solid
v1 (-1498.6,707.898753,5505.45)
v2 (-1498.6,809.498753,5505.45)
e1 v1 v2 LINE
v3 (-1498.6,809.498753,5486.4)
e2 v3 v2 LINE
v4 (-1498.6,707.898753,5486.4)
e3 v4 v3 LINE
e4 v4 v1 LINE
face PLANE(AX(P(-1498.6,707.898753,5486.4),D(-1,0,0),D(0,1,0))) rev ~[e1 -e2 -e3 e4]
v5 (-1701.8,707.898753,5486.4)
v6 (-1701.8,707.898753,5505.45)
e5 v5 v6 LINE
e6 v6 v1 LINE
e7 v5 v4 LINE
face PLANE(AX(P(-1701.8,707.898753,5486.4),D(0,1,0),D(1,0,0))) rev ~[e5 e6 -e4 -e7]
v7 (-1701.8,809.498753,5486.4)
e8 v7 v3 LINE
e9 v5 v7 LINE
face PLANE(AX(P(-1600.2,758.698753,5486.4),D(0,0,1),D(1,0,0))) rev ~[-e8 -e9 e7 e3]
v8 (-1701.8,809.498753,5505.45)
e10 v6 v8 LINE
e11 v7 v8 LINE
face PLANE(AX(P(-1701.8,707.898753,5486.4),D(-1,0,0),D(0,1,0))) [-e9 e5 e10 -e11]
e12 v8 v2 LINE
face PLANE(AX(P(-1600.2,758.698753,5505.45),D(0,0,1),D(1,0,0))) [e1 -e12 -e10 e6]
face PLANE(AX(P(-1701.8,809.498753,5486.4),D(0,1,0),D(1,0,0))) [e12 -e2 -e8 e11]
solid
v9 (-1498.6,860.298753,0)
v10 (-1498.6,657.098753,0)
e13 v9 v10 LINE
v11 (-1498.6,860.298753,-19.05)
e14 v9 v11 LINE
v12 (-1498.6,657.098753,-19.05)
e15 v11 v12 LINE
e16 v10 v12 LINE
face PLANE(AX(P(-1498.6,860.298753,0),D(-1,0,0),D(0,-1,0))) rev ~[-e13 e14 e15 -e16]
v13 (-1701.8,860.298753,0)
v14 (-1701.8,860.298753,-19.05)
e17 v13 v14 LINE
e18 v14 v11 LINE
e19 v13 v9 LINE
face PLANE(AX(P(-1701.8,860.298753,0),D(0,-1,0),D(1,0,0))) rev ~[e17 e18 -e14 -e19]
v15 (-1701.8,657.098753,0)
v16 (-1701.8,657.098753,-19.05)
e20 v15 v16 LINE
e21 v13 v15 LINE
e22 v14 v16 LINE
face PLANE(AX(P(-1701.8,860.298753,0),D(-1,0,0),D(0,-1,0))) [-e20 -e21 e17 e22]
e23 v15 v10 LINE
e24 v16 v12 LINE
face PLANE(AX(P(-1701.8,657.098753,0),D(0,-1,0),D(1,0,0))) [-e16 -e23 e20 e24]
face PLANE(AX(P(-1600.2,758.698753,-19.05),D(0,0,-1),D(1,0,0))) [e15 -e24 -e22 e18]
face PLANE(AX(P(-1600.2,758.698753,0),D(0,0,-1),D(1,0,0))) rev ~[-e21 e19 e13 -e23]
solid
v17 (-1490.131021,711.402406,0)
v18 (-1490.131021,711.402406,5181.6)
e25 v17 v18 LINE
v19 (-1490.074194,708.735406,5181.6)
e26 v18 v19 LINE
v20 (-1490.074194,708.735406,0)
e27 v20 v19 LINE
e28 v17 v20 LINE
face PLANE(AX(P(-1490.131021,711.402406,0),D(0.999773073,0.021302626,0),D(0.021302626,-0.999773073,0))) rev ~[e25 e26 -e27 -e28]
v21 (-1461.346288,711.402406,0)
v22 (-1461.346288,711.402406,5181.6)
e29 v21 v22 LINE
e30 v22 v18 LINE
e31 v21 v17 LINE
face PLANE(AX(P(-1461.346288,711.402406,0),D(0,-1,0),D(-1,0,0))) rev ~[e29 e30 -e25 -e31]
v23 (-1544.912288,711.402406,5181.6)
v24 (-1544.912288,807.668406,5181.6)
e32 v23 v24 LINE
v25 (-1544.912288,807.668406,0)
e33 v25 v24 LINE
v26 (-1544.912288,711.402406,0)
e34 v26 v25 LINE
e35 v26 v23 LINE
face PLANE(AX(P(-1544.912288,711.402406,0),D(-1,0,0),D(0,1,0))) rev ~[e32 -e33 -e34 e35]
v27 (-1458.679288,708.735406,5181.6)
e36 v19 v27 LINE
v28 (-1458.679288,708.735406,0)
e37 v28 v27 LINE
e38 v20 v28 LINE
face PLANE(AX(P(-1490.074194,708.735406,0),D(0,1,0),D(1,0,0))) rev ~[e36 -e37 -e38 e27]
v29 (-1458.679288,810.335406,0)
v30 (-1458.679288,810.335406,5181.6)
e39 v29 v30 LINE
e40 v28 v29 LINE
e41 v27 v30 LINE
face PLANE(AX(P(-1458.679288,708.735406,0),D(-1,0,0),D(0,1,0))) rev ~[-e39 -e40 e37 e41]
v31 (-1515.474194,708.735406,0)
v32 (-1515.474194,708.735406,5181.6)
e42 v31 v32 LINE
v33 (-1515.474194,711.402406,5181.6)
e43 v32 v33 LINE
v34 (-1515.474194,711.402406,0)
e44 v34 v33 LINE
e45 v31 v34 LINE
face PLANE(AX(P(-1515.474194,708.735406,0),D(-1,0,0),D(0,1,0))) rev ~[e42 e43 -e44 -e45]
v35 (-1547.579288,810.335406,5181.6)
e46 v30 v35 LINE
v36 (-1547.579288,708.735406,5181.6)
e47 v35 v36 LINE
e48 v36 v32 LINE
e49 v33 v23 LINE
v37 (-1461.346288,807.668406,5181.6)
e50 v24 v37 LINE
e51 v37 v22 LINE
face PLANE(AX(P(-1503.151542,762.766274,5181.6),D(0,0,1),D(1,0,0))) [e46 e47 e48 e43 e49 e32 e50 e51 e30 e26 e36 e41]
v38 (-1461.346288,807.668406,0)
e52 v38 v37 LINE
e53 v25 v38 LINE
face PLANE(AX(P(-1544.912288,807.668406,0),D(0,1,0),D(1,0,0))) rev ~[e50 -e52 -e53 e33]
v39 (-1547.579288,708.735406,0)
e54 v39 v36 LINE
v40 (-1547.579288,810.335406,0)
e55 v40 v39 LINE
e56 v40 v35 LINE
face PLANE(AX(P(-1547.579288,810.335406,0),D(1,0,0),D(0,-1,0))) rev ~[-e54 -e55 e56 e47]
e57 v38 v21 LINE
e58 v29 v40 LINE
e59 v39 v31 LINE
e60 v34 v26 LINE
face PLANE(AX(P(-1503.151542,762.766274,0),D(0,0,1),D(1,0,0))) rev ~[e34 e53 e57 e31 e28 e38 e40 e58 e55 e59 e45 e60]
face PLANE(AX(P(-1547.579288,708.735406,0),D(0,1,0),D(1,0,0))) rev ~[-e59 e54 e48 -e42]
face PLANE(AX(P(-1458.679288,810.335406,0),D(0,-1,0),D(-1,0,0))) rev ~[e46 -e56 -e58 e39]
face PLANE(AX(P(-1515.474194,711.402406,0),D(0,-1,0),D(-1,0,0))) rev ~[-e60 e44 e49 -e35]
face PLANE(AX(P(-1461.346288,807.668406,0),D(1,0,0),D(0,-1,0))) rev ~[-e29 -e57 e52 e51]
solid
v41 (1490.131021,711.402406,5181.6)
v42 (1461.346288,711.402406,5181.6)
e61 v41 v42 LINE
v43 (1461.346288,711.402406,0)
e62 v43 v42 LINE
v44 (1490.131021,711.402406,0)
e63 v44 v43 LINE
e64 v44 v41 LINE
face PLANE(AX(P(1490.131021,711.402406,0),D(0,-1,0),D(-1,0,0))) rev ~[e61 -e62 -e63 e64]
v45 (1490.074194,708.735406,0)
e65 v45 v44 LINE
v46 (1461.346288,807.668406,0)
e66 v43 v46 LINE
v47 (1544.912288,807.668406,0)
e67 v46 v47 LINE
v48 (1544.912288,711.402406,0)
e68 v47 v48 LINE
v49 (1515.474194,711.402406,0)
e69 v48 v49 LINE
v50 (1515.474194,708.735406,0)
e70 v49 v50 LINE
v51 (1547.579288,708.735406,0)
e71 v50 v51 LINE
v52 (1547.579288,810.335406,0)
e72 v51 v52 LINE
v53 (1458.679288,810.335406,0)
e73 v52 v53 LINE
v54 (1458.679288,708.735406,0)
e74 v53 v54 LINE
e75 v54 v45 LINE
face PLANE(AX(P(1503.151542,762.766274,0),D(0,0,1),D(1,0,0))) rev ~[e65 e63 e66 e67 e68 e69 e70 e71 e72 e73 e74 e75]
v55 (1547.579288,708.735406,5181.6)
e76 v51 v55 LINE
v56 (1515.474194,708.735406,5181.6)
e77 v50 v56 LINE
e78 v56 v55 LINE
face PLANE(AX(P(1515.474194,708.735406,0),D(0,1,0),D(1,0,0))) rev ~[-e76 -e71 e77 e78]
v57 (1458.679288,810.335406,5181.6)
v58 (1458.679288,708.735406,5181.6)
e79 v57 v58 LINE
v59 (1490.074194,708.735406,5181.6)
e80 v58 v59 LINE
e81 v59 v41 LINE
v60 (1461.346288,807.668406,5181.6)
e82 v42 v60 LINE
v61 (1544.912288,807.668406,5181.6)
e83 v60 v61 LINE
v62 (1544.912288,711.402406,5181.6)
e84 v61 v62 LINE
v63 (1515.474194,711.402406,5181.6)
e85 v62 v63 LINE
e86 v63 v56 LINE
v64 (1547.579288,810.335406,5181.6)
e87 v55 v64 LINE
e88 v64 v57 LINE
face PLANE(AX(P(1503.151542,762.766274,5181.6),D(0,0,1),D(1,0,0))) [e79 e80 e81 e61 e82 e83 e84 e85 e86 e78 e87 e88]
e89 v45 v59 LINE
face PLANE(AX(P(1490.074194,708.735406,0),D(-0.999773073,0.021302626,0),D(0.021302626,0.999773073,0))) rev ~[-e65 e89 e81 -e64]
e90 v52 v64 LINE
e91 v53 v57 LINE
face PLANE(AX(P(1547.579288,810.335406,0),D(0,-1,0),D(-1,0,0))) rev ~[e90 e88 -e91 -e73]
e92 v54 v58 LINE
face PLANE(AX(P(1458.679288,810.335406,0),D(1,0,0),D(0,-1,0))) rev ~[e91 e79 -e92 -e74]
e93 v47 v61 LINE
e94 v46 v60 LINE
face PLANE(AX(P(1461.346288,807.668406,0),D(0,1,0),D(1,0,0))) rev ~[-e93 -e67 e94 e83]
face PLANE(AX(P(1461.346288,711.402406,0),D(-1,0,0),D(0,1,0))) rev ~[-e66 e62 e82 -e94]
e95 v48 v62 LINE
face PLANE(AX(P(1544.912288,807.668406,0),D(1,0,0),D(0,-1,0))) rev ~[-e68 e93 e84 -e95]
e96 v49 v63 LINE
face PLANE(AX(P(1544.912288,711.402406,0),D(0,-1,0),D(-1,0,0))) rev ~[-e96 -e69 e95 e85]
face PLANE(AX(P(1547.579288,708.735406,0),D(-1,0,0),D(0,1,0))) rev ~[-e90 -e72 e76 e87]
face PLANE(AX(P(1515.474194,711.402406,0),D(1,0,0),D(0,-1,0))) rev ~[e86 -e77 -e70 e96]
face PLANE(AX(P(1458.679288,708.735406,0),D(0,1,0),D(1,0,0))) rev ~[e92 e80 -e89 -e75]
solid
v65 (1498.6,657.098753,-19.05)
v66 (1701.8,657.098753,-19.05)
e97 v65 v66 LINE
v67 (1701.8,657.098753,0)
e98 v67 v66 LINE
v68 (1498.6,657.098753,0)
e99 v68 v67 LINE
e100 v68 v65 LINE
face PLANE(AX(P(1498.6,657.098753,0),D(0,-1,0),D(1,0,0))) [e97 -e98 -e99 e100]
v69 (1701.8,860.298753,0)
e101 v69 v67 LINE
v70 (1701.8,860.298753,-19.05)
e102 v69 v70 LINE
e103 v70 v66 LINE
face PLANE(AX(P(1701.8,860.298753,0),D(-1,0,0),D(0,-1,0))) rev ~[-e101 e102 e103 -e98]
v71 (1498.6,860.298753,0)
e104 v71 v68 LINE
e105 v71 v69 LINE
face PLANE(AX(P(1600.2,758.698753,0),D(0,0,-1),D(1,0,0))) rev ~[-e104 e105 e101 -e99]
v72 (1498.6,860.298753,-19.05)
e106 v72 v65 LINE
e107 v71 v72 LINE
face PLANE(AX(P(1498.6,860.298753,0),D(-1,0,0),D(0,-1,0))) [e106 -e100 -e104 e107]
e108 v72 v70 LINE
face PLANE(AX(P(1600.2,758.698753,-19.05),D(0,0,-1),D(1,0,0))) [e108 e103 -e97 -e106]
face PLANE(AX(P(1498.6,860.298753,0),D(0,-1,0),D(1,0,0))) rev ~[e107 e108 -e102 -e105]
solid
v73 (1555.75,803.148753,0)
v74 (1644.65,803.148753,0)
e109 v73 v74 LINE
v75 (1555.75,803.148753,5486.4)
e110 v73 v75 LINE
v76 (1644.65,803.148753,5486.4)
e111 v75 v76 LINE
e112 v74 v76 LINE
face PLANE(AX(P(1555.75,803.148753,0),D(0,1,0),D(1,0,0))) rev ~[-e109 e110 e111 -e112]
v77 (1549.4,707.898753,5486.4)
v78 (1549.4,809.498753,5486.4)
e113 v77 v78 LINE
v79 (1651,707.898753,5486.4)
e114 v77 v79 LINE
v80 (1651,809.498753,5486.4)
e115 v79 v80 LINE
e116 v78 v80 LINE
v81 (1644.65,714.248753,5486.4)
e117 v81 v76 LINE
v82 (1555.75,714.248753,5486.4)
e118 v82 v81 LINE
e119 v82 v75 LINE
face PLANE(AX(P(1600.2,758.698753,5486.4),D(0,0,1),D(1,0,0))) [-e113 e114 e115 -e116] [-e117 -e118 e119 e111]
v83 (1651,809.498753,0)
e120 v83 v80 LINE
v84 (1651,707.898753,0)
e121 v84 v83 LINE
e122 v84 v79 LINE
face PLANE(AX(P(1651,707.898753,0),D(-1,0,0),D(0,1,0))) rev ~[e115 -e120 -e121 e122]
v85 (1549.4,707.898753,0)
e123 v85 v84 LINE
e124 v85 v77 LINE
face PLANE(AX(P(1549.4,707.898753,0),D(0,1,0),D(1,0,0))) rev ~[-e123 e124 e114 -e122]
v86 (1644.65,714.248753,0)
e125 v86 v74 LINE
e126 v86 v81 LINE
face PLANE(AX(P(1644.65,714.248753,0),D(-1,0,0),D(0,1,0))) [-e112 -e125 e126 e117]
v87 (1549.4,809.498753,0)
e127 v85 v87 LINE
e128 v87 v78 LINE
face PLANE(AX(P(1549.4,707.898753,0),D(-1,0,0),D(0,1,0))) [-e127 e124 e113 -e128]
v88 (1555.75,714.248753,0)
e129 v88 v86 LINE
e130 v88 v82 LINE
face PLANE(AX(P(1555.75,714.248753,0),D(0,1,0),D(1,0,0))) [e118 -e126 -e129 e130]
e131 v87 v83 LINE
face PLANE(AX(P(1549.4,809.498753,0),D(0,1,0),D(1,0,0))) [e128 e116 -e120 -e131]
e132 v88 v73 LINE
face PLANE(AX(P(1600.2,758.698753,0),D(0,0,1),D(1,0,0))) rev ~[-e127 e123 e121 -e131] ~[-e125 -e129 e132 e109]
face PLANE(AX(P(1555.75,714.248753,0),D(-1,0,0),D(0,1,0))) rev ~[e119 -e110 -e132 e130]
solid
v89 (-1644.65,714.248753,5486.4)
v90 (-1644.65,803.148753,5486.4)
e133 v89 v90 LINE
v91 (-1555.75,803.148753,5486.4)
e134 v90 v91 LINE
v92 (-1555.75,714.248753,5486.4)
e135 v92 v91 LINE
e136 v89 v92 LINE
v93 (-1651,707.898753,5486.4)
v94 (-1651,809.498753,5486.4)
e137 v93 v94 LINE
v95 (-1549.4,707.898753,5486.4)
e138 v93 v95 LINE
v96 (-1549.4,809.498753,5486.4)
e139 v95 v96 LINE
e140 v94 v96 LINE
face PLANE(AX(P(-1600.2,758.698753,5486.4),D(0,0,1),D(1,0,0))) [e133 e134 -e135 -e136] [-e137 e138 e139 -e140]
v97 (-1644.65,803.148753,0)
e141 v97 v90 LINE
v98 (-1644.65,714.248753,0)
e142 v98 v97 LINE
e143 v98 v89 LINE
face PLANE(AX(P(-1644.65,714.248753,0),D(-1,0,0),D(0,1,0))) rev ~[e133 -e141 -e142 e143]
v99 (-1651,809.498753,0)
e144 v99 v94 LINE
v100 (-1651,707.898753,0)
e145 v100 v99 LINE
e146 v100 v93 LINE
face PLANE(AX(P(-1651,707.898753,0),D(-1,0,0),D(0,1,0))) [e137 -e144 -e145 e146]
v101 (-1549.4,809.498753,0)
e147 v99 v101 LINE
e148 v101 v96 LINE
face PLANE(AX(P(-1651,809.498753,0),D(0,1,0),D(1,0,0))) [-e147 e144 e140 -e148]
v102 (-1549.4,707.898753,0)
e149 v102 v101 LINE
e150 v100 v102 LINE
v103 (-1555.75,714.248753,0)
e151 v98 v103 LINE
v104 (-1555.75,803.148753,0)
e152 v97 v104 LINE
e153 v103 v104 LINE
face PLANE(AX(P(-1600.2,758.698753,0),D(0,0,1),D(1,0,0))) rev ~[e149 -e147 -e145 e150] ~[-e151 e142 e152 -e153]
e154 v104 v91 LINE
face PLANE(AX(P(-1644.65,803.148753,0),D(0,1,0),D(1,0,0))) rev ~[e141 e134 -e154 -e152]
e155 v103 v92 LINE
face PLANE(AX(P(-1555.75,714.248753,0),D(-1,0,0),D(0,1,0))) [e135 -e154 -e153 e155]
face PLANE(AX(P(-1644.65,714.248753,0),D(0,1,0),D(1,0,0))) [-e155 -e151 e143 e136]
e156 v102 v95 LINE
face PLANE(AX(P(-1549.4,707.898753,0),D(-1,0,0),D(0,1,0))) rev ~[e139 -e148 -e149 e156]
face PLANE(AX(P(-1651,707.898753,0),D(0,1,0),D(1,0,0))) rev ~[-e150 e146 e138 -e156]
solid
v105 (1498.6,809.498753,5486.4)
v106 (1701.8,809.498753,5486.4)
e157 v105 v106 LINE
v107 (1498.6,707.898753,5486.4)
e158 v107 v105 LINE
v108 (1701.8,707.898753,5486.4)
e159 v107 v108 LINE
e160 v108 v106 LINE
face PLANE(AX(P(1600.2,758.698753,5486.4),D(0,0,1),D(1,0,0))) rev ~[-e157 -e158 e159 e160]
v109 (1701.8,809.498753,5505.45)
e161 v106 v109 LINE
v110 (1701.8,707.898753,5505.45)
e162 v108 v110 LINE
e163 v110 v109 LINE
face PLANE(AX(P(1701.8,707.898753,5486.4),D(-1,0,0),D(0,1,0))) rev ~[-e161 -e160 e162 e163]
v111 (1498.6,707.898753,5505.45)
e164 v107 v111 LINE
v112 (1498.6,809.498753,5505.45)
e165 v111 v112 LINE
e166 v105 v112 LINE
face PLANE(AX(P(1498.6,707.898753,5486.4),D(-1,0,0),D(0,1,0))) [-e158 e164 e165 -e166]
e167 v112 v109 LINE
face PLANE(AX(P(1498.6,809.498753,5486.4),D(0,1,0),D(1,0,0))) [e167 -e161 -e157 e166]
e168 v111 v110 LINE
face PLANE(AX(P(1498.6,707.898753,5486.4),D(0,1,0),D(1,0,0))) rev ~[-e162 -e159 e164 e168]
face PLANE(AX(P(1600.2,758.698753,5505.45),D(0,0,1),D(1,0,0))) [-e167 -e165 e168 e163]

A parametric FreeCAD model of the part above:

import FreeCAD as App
import Part
import Sketcher
from FreeCAD import Vector
Q = App.Units.Quantity


def add_polygon(sketch, points):
    """Adds a closed chain of lines whose ends are joined by coincident constraints."""
    first, n = sketch.GeometryCount, len(points)
    for a, b in zip(points, points[1:] + points[:1]):
        sketch.addGeometry(Part.LineSegment(App.Vector(*a, 0), App.Vector(*b, 0)), False)
    for i in range(n):
        sketch.addConstraint(Sketcher.Constraint("Coincident", first + i, 2, first + (i + 1) % n, 1))

doc = App.newDocument("Part")
body = doc.addObject("PartDesign::Body", "Body")
body.AllowCompound = True

sketch1 = body.newObject("Sketcher::SketchObject", "Sketch")
sketch1.AttachmentSupport = (doc.getObject("XY_Plane"), [""])
sketch1.MapMode = "FlatFace"
add_polygon(sketch1, [(-1651, 809), (-1651, 708), (-1549, 708), (-1549, 809)])
add_polygon(sketch1, [(-1556, 714), (-1645, 714), (-1645, 803), (-1556, 803)])
add_polygon(sketch1, [(1549, 809), (1549, 708), (1651, 708), (1651, 809)])
add_polygon(sketch1, [(1645, 714), (1556, 714), (1556, 803), (1645, 803)])
sketch1.addConstraint([
    Sketcher.Constraint("Vertical", 0),
    Sketcher.Constraint("Horizontal", 1),
    Sketcher.Constraint("Vertical", 2),
    Sketcher.Constraint("Horizontal", 3),
    Sketcher.Constraint("Horizontal", 4),
    Sketcher.Constraint("Vertical", 5),
    Sketcher.Constraint("Horizontal", 6),
    Sketcher.Constraint("Vertical", 7),
    Sketcher.Constraint("Vertical", 8),
    Sketcher.Constraint("Horizontal", 9),
    Sketcher.Constraint("Vertical", 10),
    Sketcher.Constraint("Horizontal", 11),
    Sketcher.Constraint("Horizontal", 12),
    Sketcher.Constraint("Vertical", 13),
    Sketcher.Constraint("Horizontal", 14),
    Sketcher.Constraint("Vertical", 15),
    Sketcher.Constraint("Symmetric", 1, 2, 8, 2, -2),
    Sketcher.Constraint("Symmetric", 3, 2, 10, 2, -2),
    Sketcher.Constraint("Symmetric", 7, 2, 12, 2, -2),
    Sketcher.Constraint("Symmetric", 5, 2, 14, 2, -2),
    Sketcher.Constraint("Equal", 11, 0),
    Sketcher.Constraint("Equal", 14, 5),
    Sketcher.Constraint("DistanceX", 1, 1, 1, 2, Q("4 in")),
    Sketcher.Constraint("DistanceX", 4, 2, 4, 1, Q("3.5 in")),
    Sketcher.Constraint("DistanceX", 0, 2, -1, 1, Q("65 in")),
    Sketcher.Constraint("DistanceX", 4, 2, -1, 1, Q("64.75 in")),
    Sketcher.Constraint("DistanceY", 0, 2, 4, 2, Q("0.25 in")),
    Sketcher.Constraint("DistanceY", -1, 1, 0, 2, 707.898753),
])
pad1 = body.newObject("PartDesign::Pad", "Pad")
pad1.Profile = sketch1
pad1.Length = Q("216 in")
body2 = doc.addObject("PartDesign::Body", "Body001")
body2.AllowCompound = True

sketch2 = body2.newObject("Sketcher::SketchObject", "Sketch001")
sketch2.AttachmentSupport = (doc.getObject("XY_Plane001"), [""])
sketch2.MapMode = "FlatFace"
add_polygon(sketch2, [(-1702, 657), (-1702, 860), (-1499, 860), (-1499, 657)])
add_polygon(sketch2, [(1499, 657), (1499, 860), (1702, 860), (1702, 657)])
sketch2.addConstraint([
    Sketcher.Constraint("Vertical", 0),
    Sketcher.Constraint("Horizontal", 1),
    Sketcher.Constraint("Vertical", 2),
    Sketcher.Constraint("Horizontal", 3),
    Sketcher.Constraint("Vertical", 4),
    Sketcher.Constraint("Horizontal", 5),
    Sketcher.Constraint("Vertical", 6),
    Sketcher.Constraint("Horizontal", 7),
    Sketcher.Constraint("Symmetric", 1, 2, 4, 2, -2),
    Sketcher.Constraint("Symmetric", 3, 2, 6, 2, -2),
    Sketcher.Constraint("Equal", 7, 0),
    Sketcher.Constraint("DistanceX", 1, 1, 1, 2, Q("8 in")),
    Sketcher.Constraint("DistanceX", 0, 2, -1, 1, Q("67 in")),
    Sketcher.Constraint("DistanceY", -1, 1, 0, 2, 860.298753),
])
pad2 = body2.newObject("PartDesign::Pad", "Pad001")
pad2.Profile = sketch2
pad2.Length = Q("0.75 in")
pad2.Reversed = True
body3 = doc.addObject("PartDesign::Body", "Body002")
body3.AllowCompound = True

sketch3 = body3.newObject("Sketcher::SketchObject", "Sketch002")
sketch3.AttachmentSupport = (doc.getObject("XY_Plane002"), [""])
sketch3.MapMode = "FlatFace"
sketch3.AttachmentOffset = App.Placement(Vector(0, 0, 216 * 25.4), App.Rotation())
add_polygon(sketch3, [(-1702, 809), (-1702, 708), (-1499, 708), (-1499, 809)])
add_polygon(sketch3, [(1499, 809), (1499, 708), (1702, 708), (1702, 809)])
sketch3.addConstraint([
    Sketcher.Constraint("Vertical", 0),
    Sketcher.Constraint("Horizontal", 1),
    Sketcher.Constraint("Vertical", 2),
    Sketcher.Constraint("Horizontal", 3),
    Sketcher.Constraint("Vertical", 4),
    Sketcher.Constraint("Horizontal", 5),
    Sketcher.Constraint("Vertical", 6),
    Sketcher.Constraint("Horizontal", 7),
    Sketcher.Constraint("Symmetric", 1, 2, 4, 2, -2),
    Sketcher.Constraint("Symmetric", 3, 2, 6, 2, -2),
    Sketcher.Constraint("DistanceX", 1, 1, 1, 2, Q("8 in")),
    Sketcher.Constraint("DistanceY", 0, 2, 0, 1, Q("4 in")),
    Sketcher.Constraint("DistanceX", 0, 2, -1, 1, Q("67 in")),
    Sketcher.Constraint("DistanceY", -1, 1, 0, 2, 707.898753),
])
pad3 = body3.newObject("PartDesign::Pad", "Pad002")
pad3.Profile = sketch3
pad3.Length = Q("0.75 in")
body4 = doc.addObject("PartDesign::Body", "Body003")
body4.AllowCompound = True

sketch4 = body4.newObject("Sketcher::SketchObject", "Sketch003")
sketch4.AttachmentSupport = (doc.getObject("XY_Plane003"), [""])
sketch4.MapMode = "FlatFace"
add_polygon(sketch4, [(-1547.6, 810.3), (-1547.6, 708.7), (-1515.5, 708.7), (-1515.5, 711.4), (-1544.9, 711.4), (-1544.9, 807.7), (-1461.3, 807.7), (-1461.3, 711.4), (-1490.1, 711.4), (-1490.1, 708.7), (-1458.7, 708.7), (-1458.7, 810.3)])
add_polygon(sketch4, [(1490.1, 708.7), (1490.1, 711.4), (1461.3, 711.4), (1461.3, 807.7), (1544.9, 807.7), (1544.9, 711.4), (1515.5, 711.4), (1515.5, 708.7), (1547.6, 708.7), (1547.6, 810.3), (1458.7, 810.3), (1458.7, 708.7)])
sketch4.addConstraint([
    Sketcher.Constraint("Vertical", 0),
    Sketcher.Constraint("Horizontal", 1),
    Sketcher.Constraint("Vertical", 2),
    Sketcher.Constraint("Horizontal", 3),
    Sketcher.Constraint("Vertical", 4),
    Sketcher.Constraint("Horizontal", 5),
    Sketcher.Constraint("Vertical", 6),
    Sketcher.Constraint("Horizontal", 7),
    Sketcher.Constraint("Horizontal", 9),
    Sketcher.Constraint("Vertical", 10),
    Sketcher.Constraint("Horizontal", 11),
    Sketcher.Constraint("Horizontal", 13),
    Sketcher.Constraint("Vertical", 14),
    Sketcher.Constraint("Horizontal", 15),
    Sketcher.Constraint("Vertical", 16),
    Sketcher.Constraint("Horizontal", 17),
    Sketcher.Constraint("Vertical", 18),
    Sketcher.Constraint("Horizontal", 19),
    Sketcher.Constraint("Vertical", 20),
    Sketcher.Constraint("Horizontal", 21),
    Sketcher.Constraint("Vertical", 22),
    Sketcher.Constraint("Horizontal", 23),
    Sketcher.Constraint("Symmetric", 7, 2, 12, 2, -2),
    Sketcher.Constraint("Symmetric", 5, 2, 14, 2, -2),
    Sketcher.Constraint("Symmetric", 3, 2, 16, 2, -2),
    Sketcher.Constraint("Symmetric", 1, 2, 18, 2, -2),
    Sketcher.Constraint("Symmetric", 11, 2, 20, 2, -2),
    Sketcher.Constraint("Symmetric", 9, 2, 22, 2, -2),
    Sketcher.Constraint("Horizontal", 3, 2, 6, 2),
    Sketcher.Constraint("Horizontal", 1, 2, 8, 2),
    Sketcher.Constraint("Equal", 9, 23),
    Sketcher.Constraint("DistanceY", 0, 2, 0, 1, Q("4 in")),
    Sketcher.Constraint("DistanceX", 11, 2, 11, 1, Q("3.5 in")),
    Sketcher.Constraint("DistanceX", 1, 2, 8, 2, Q("1 in")),
    Sketcher.Constraint("DistanceX", 5, 1, 5, 2, Q("3.29 in")),
    Sketcher.Constraint("DistanceY", 4, 1, 4, 2, Q("3.79 in")),
    Sketcher.Constraint("DistanceY", 2, 1, 2, 2, Q("0.105 in")),
    Sketcher.Constraint("DistanceX", 0, 2, 3, 2, Q("0.105 in")),
    Sketcher.Constraint("DistanceX", 1, 1, 1, 2, 32.105094),
    Sketcher.Constraint("DistanceX", 7, 2, 7, 1, 28.784733),
    Sketcher.Constraint("DistanceX", 0, 2, -1, 1, 1547.579288),
    Sketcher.Constraint("DistanceY", -1, 1, 0, 2, 708.735406),
])
pad4 = body4.newObject("PartDesign::Pad", "Pad003")
pad4.Profile = sketch4
pad4.Length = Q("204 in")

doc.recompute()
